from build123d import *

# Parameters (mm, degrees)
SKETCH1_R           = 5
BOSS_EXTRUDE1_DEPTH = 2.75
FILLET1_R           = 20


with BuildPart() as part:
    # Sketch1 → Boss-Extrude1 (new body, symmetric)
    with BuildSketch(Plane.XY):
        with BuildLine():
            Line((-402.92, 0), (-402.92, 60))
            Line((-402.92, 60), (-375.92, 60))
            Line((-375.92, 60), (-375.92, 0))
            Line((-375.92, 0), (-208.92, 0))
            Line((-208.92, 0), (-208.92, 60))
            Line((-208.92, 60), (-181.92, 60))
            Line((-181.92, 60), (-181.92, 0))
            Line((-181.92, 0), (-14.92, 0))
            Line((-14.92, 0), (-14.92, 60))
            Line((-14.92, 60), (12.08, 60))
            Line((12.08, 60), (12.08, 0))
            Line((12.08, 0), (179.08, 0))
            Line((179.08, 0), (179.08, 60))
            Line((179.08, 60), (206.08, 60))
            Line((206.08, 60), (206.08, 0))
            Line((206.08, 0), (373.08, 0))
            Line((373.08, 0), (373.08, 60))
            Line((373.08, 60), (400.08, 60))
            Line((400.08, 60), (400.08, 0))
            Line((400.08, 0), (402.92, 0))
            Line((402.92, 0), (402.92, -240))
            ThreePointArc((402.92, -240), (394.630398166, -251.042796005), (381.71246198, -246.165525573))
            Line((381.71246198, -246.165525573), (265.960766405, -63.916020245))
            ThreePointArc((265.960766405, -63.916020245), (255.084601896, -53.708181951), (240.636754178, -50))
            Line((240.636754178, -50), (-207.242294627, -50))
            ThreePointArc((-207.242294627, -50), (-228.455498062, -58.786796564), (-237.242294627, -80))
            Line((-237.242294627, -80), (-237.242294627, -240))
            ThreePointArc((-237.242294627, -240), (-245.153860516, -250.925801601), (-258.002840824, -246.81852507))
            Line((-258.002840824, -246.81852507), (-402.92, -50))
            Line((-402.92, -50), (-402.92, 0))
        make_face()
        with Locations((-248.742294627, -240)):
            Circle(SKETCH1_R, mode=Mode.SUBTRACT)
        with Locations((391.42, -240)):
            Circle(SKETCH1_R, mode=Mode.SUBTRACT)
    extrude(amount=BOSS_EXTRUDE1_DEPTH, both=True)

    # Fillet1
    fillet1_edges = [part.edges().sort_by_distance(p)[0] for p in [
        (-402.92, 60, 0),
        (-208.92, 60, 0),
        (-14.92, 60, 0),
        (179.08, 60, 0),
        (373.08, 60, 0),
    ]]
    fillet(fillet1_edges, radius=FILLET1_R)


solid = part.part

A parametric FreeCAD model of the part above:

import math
import FreeCAD as App
import Part
import Sketcher
from FreeCAD import Vector


def edges_at(feature, points):
    """Names of the edges that pass closest to the given points."""
    edges = feature.Shape.Edges
    near = lambda p: min(range(len(edges)), key=lambda i: edges[i].distToShape(Part.Vertex(*p))[0])
    return sorted({f"Edge{near(p) + 1}" for p in points})

doc = App.newDocument("Part")
body = doc.addObject("PartDesign::Body", "Body")

# Sketch on XY plane
sketch1 = body.newObject("Sketcher::SketchObject", "Sketch")
sketch1.AttachmentSupport = (doc.getObject("XY_Plane"), [""])
sketch1.MapMode = "FlatFace"
sketch1.addGeometry([
    Part.LineSegment(Vector(-375.9, 60, 0), Vector(-402.9, 60, 0)),  # 0
    Part.LineSegment(Vector(-402.9, 60, 0), Vector(-402.9, -50, 0)),  # 1
    Part.LineSegment(Vector(-402.9, -50, 0), Vector(-258, -246.8, 0)),  # 2
    Part.ArcOfCircle(Part.Circle(Vector(-248.7, -240, 0), Vector(0, 0, 1), 11.5), math.radians(-144), math.radians(0)),  # 3
    Part.LineSegment(Vector(-237.2, -240, 0), Vector(-237.2, -80, 0)),  # 4
    Part.ArcOfCircle(Part.Circle(Vector(-207.2, -80, 0), Vector(0, 0, 1), 30), math.radians(90), math.radians(180)),  # 5
    Part.LineSegment(Vector(-207.2, -50, 0), Vector(240.6, -50, 0)),  # 6
    Part.ArcOfCircle(Part.Circle(Vector(240.6, -80, 0), Vector(0, 0, 1), 30), math.radians(32), math.radians(90)),  # 7
    Part.LineSegment(Vector(266, -63.9, 0), Vector(381.7, -246.2, 0)),  # 8
    Part.ArcOfCircle(Part.Circle(Vector(391.4, -240, 0), Vector(0, 0, 1), 11.5), math.radians(-148), math.radians(0)),  # 9
    Part.LineSegment(Vector(402.9, -240, 0), Vector(402.9, 0, 0)),  # 10
    Part.LineSegment(Vector(402.9, 0, 0), Vector(400.1, 0, 0)),  # 11
    Part.LineSegment(Vector(400.1, 0, 0), Vector(400.1, 60, 0)),  # 12
    Part.LineSegment(Vector(400.1, 60, 0), Vector(373.1, 60, 0)),  # 13
    Part.LineSegment(Vector(373.1, 60, 0), Vector(373.1, 0, 0)),  # 14
    Part.LineSegment(Vector(373.1, 0, 0), Vector(206.1, 0, 0)),  # 15
    Part.LineSegment(Vector(206.1, 0, 0), Vector(206.1, 60, 0)),  # 16
    Part.LineSegment(Vector(206.1, 60, 0), Vector(179.1, 60, 0)),  # 17
    Part.LineSegment(Vector(179.1, 60, 0), Vector(179.1, 0, 0)),  # 18
    Part.LineSegment(Vector(179.1, 0, 0), Vector(12.1, 0, 0)),  # 19
    Part.LineSegment(Vector(12.1, 0, 0), Vector(12.1, 60, 0)),  # 20
    Part.LineSegment(Vector(12.1, 60, 0), Vector(-14.9, 60, 0)),  # 21
    Part.LineSegment(Vector(-14.9, 60, 0), Vector(-14.9, 0, 0)),  # 22
    Part.LineSegment(Vector(-14.9, 0, 0), Vector(-181.9, 0, 0)),  # 23
    Part.LineSegment(Vector(-181.9, 0, 0), Vector(-181.9, 60, 0)),  # 24
    Part.LineSegment(Vector(-181.9, 60, 0), Vector(-208.9, 60, 0)),  # 25
    Part.LineSegment(Vector(-208.9, 60, 0), Vector(-208.9, 0, 0)),  # 26
    Part.LineSegment(Vector(-208.9, 0, 0), Vector(-375.9, 0, 0)),  # 27
    Part.LineSegment(Vector(-375.9, 0, 0), Vector(-375.9, 60, 0)),  # 28
    Part.Circle(Vector(391.4, -240, 0), Vector(0, 0, 1), 5),  # 29
    Part.Circle(Vector(-248.7, -240, 0), Vector(0, 0, 1), 5),  # 30
], False)
sketch1.addConstraint([
    Sketcher.Constraint("Coincident", 0, 2, 1, 1),
    Sketcher.Constraint("Coincident", 1, 2, 2, 1),
    Sketcher.Constraint("Tangent", 2, 2, 3, 1),
    Sketcher.Constraint("Tangent", 3, 2, 4, 1),
    Sketcher.Constraint("Tangent", 4, 2, 5, 2),
    Sketcher.Constraint("Tangent", 5, 1, 6, 1),
    Sketcher.Constraint("Tangent", 6, 2, 7, 2),
    Sketcher.Constraint("Tangent", 7, 1, 8, 1),
    Sketcher.Constraint("Tangent", 8, 2, 9, 1),
    Sketcher.Constraint("Tangent", 9, 2, 10, 1),
    Sketcher.Constraint("Coincident", 10, 2, 11, 1),
    Sketcher.Constraint("Coincident", 11, 2, 12, 1),
    Sketcher.Constraint("Coincident", 12, 2, 13, 1),
    Sketcher.Constraint("Coincident", 13, 2, 14, 1),
    Sketcher.Constraint("Coincident", 14, 2, 15, 1),
    Sketcher.Constraint("Coincident", 15, 2, 16, 1),
    Sketcher.Constraint("Coincident", 16, 2, 17, 1),
    Sketcher.Constraint("Coincident", 17, 2, 18, 1),
    Sketcher.Constraint("Coincident", 18, 2, 19, 1),
    Sketcher.Constraint("Coincident", 19, 2, 20, 1),
    Sketcher.Constraint("Coincident", 20, 2, 21, 1),
    Sketcher.Constraint("Coincident", 21, 2, 22, 1),
    Sketcher.Constraint("Coincident", 22, 2, 23, 1),
    Sketcher.Constraint("Coincident", 23, 2, 24, 1),
    Sketcher.Constraint("Coincident", 24, 2, 25, 1),
    Sketcher.Constraint("Coincident", 25, 2, 26, 1),
    Sketcher.Constraint("Coincident", 26, 2, 27, 1),
    Sketcher.Constraint("Coincident", 27, 2, 28, 1),
    Sketcher.Constraint("Coincident", 28, 2, 0, 1),
    Sketcher.Constraint("Horizontal", 0),
    Sketcher.Constraint("Vertical", 1),
    Sketcher.Constraint("Vertical", 4),
    Sketcher.Constraint("Horizontal", 6),
    Sketcher.Constraint("Vertical", 10),
    Sketcher.Constraint("Horizontal", 11),
    Sketcher.Constraint("Vertical", 12),
    Sketcher.Constraint("Horizontal", 13),
    Sketcher.Constraint("Vertical", 14),
    Sketcher.Constraint("Horizontal", 15),
    Sketcher.Constraint("Vertical", 16),
    Sketcher.Constraint("Horizontal", 17),
    Sketcher.Constraint("Vertical", 18),
    Sketcher.Constraint("Horizontal", 19),
    Sketcher.Constraint("Vertical", 20),
    Sketcher.Constraint("Horizontal", 21),
    Sketcher.Constraint("Vertical", 22),
    Sketcher.Constraint("Horizontal", 23),
    Sketcher.Constraint("Vertical", 24),
    Sketcher.Constraint("Horizontal", 25),
    Sketcher.Constraint("Vertical", 26),
    Sketcher.Constraint("Horizontal", 27),
    Sketcher.Constraint("Vertical", 28),
    Sketcher.Constraint("Coincident", 29, 3, 9, 3),
    Sketcher.Constraint("Coincident", 30, 3, 3, 3),
    Sketcher.Constraint("Equal", 5, 7),
    Sketcher.Constraint("Equal", 3, 9),
    Sketcher.Constraint("Equal", 29, 30),
    Sketcher.Constraint("PointOnObject", 10, 2, -1),
    Sketcher.Constraint("PointOnObject", 14, 2, -1),
    Sketcher.Constraint("PointOnObject", 18, 2, -1),
    Sketcher.Constraint("PointOnObject", 22, 2, -1),
    Sketcher.Constraint("PointOnObject", 26, 2, -1),
    Sketcher.Constraint("Horizontal", 3, 3, 9, 3),
    Sketcher.Constraint("Horizontal", 1, 2, 5, 1),
    Sketcher.Constraint("Horizontal", 0, 2, 12, 2),
    Sketcher.Constraint("Horizontal", 13, 2, 16, 2),
    Sketcher.Constraint("Horizontal", 17, 2, 20, 2),
    Sketcher.Constraint("Horizontal", 21, 2, 24, 2),
    Sketcher.Constraint("Equal", 0, 13),
    Sketcher.Constraint("Equal", 13, 17),
    Sketcher.Constraint("Equal", 15, 19),
    Sketcher.Constraint("Equal", 17, 21),
    Sketcher.Constraint("Equal", 19, 23),
    Sketcher.Constraint("Equal", 21, 25),
    Sketcher.Constraint("Equal", 23, 27),
    Sketcher.Constraint("Diameter", 29, 10.0),
    Sketcher.Constraint("Radius", 5, 30.0),
    Sketcher.Constraint("Radius", 3, 11.5),
    Sketcher.Constraint("DistanceX", 0, 2, 0, 1, 27.0),
    Sketcher.Constraint("DistanceX", 15, 2, 15, 1, 167.0),
    Sketcher.Constraint("DistanceY", 1, 2, 1, 1, 110.0),
    Sketcher.Constraint("DistanceY", 4, 1, 4, 2, 160.0),
    Sketcher.Constraint("DistanceY", 10, 1, 10, 2, 240.0),
    Sketcher.Constraint("DistanceX", 11, 2, 11, 1, 2.84),
    Sketcher.Constraint("DistanceX", -1, 1, 9, 3, 391.42),
    Sketcher.Constraint("DistanceX", 6, 1, 6, 2, 447.879049),
    Sketcher.Constraint("Distance", 8, 215.901221),
])
pad1 = body.newObject("PartDesign::Pad", "Pad")
pad1.Profile = sketch1
pad1.Length = 5.5
pad1.Midplane = True
doc.recompute()

fillet = body.newObject("PartDesign::Fillet", "Fillet")
fillet.Base = (pad1, edges_at(pad1, [
    (-402.92, 60, 0),
    (-208.92, 60, 0),
    (-14.92, 60, 0),
    (179.08, 60, 0),
    (373.08, 60, 0),
]))
fillet.Radius = 20

doc.recompute()
